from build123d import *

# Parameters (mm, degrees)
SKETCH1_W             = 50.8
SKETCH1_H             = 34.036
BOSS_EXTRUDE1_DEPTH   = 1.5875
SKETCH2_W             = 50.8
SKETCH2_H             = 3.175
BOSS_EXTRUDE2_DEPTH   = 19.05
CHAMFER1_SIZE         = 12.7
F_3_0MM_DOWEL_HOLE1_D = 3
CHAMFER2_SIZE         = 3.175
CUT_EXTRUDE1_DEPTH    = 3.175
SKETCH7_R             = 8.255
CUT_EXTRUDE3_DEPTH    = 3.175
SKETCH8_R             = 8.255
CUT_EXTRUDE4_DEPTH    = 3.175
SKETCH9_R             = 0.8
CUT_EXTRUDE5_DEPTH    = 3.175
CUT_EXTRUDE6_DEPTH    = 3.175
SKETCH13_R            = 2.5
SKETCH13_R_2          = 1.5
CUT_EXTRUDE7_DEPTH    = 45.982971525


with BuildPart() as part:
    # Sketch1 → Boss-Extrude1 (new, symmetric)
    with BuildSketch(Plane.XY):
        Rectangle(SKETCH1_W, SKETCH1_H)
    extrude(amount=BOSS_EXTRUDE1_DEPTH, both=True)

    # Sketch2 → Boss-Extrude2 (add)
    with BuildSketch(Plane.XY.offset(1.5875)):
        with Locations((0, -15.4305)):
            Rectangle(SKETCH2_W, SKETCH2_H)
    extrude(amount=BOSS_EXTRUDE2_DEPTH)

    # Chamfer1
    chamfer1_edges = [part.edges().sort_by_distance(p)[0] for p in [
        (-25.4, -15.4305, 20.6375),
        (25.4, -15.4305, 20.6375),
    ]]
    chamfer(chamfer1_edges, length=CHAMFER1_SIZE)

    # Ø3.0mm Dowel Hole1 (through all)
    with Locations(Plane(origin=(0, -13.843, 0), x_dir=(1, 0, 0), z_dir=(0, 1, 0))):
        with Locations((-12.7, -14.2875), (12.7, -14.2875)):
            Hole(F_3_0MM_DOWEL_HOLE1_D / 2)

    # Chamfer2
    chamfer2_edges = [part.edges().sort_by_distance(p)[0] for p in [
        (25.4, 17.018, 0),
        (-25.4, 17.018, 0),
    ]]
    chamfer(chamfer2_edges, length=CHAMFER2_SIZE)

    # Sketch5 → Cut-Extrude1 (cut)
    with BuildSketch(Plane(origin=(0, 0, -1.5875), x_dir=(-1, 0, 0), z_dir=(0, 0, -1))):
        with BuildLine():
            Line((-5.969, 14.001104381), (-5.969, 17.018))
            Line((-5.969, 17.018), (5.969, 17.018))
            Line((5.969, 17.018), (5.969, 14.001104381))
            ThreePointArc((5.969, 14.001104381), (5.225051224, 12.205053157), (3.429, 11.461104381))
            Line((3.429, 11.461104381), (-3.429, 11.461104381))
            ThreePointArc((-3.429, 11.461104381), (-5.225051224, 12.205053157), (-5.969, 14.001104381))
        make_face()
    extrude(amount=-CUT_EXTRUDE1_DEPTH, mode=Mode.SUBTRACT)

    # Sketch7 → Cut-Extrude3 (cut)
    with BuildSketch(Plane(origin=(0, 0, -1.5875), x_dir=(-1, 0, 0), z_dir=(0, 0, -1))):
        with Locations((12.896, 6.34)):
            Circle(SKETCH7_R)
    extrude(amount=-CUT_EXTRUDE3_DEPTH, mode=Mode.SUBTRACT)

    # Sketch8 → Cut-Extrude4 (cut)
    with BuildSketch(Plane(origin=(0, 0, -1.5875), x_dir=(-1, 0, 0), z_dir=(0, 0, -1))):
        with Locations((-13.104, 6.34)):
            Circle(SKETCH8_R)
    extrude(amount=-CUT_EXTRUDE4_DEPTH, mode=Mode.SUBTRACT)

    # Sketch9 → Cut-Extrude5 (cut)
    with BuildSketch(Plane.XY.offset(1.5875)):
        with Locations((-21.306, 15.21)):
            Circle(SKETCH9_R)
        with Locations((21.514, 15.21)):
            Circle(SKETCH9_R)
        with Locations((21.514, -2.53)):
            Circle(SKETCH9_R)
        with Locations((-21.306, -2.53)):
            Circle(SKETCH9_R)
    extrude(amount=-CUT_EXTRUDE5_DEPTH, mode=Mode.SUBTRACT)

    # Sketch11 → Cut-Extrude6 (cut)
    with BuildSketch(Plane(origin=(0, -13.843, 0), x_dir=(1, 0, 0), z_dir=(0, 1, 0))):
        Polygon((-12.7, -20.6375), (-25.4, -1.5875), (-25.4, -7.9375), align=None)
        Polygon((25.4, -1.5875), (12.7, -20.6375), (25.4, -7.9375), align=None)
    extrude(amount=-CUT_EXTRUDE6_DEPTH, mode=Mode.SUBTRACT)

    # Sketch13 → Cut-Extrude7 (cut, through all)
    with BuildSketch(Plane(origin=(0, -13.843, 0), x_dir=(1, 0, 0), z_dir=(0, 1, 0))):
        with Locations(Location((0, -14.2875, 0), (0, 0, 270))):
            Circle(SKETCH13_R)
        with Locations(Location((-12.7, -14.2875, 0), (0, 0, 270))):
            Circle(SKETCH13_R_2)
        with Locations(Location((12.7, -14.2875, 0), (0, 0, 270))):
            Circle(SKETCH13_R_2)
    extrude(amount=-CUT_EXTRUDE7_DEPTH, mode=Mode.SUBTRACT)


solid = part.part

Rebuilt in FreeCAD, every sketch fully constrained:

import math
import FreeCAD as App
import Part
import Sketcher

V = App.Vector
Q = App.Units.Quantity


def edges_at(feature, points):
    """Names of the edges that pass closest to the given points."""
    edges = feature.Shape.Edges
    near = lambda p: min(range(len(edges)), key=lambda i: edges[i].distToShape(Part.Vertex(*p))[0])
    return sorted({f"Edge{near(p) + 1}" for p in points})


def add_polygon(sketch, points):
    """Adds a closed chain of lines whose ends are joined by coincident constraints."""
    first, n = sketch.GeometryCount, len(points)
    for a, b in zip(points, points[1:] + points[:1]):
        sketch.addGeometry(Part.LineSegment(App.Vector(*a, 0), App.Vector(*b, 0)), False)
    for i in range(n):
        sketch.addConstraint(Sketcher.Constraint("Coincident", first + i, 2, first + (i + 1) % n, 1))

doc = App.newDocument("Part")
body = doc.addObject("PartDesign::Body", "Body")

# Sketch on XY plane
sketch1 = body.newObject("Sketcher::SketchObject", "Sketch")
sketch1.AttachmentSupport = (doc.getObject("XY_Plane"), [""])
sketch1.MapMode = "FlatFace"
add_polygon(sketch1, [(-25.4, 17.018), (-25.4, -17.018), (25.4, -17.018), (25.4, 17.018)])  # lines 0-3
sketch1.addConstraint([
    Sketcher.Constraint("Vertical", 0),
    Sketcher.Constraint("Horizontal", 1),
    Sketcher.Constraint("Vertical", 2),
    Sketcher.Constraint("Horizontal", 3),
    Sketcher.Constraint("Symmetric", 0, 2, 2, 2, -1, 1),
    Sketcher.Constraint("DistanceX", 1, 1, 1, 2, Q("2 in")),
    Sketcher.Constraint("DistanceY", 0, 2, 0, 1, Q("1.34 in")),
])
pad1 = body.newObject("PartDesign::Pad", "Pad")
pad1.Profile = sketch1
pad1.Length = Q("0.125 in")
pad1.Midplane = True

# Sketch on XY plane
sketch2 = body.newObject("Sketcher::SketchObject", "Sketch001")
sketch2.AttachmentSupport = (doc.getObject("XY_Plane"), [""])
sketch2.MapMode = "FlatFace"
sketch2.AttachmentOffset = App.Placement(V(0, 0, 0.0625 * 25.4), App.Rotation())
add_polygon(sketch2, [(-25.4, -13.843), (-25.4, -17.018), (25.4, -17.018), (25.4, -13.843)])  # lines 0-3
sketch2.addConstraint([
    Sketcher.Constraint("Vertical", 0),
    Sketcher.Constraint("Horizontal", 1),
    Sketcher.Constraint("Vertical", 2),
    Sketcher.Constraint("Horizontal", 3),
    Sketcher.Constraint("DistanceX", 1, 1, 1, 2, Q("2 in")),
    Sketcher.Constraint("DistanceX", 0, 2, -1, 1, Q("1 in")),
    Sketcher.Constraint("DistanceY", 0, 2, 0, 1, Q("0.125 in")),
    Sketcher.Constraint("DistanceY", 0, 2, -1, 1, Q("0.67 in")),
])
pad2 = body.newObject("PartDesign::Pad", "Pad001")
pad2.Profile = sketch2
pad2.Length = Q("0.75 in")
doc.recompute()

chamfer = body.newObject("PartDesign::Chamfer", "Chamfer")
chamfer.Base = (pad2, edges_at(pad2, [(-25.4, -15.431, 20.637), (25.4, -15.431, 20.637)]))
chamfer.Size = Q("0.5 in")

# Sketch on XZ plane
sketch3 = body.newObject("Sketcher::SketchObject", "Sketch002")
sketch3.AttachmentSupport = (doc.getObject("XZ_Plane"), [""])
sketch3.MapMode = "FlatFace"
sketch3.AttachmentOffset = App.Placement(V(0, 0, 0.545 * 25.4), App.Rotation())
sketch3.addGeometry([
    Part.Circle(V(-12.7, 14.2875, 0), V(0, 0, 1), 1.5),
    Part.Circle(V(12.7, 14.2875, 0), V(0, 0, 1), 1.5),
], False)
sketch3.addConstraint([
    Sketcher.Constraint("Equal", 0, 1),
    Sketcher.Constraint("Symmetric", 0, 3, 1, 3, -2),
    Sketcher.Constraint("DistanceX", 0, 3, 1, 3, Q("1 in")),
    Sketcher.Constraint("Diameter", 0, Q("3 mm")),
    Sketcher.Constraint("DistanceY", -1, 1, 0, 3, Q("0.5625 in")),
])
doc.recompute()
hole = body.newObject("PartDesign::Hole", "Hole")
hole.Profile = sketch3
hole.ThreadType = "None"
hole.Diameter = 3
hole.DepthType = "ThroughAll"
hole.Reversed = True
doc.recompute()

chamfer2 = body.newObject("PartDesign::Chamfer", "Chamfer001")
chamfer2.Base = (hole, edges_at(hole, [(25.4, 17.018, 0), (-25.4, 17.018, 0)]))
chamfer2.Size = Q("0.125 in")

# Sketch on XY plane
sketch4 = body.newObject("Sketcher::SketchObject", "Sketch003")
sketch4.AttachmentSupport = (doc.getObject("XY_Plane"), [""])
sketch4.MapMode = "FlatFace"
sketch4.AttachmentOffset = App.Placement(V(0, 0, -0.0625 * 25.4), App.Rotation())
sketch4.addGeometry([
    Part.LineSegment(V(5.969, 17.018, 0), V(5.969, 14.001104, 0)),  # 0
    Part.ArcOfCircle(Part.Circle(V(3.429, 14.001104, 0), V(0, 0, 1), 2.54), math.radians(-90), math.radians(0)),  # 1
    Part.LineSegment(V(3.429, 11.461104, 0), V(-3.429, 11.461104, 0)),  # 2
    Part.ArcOfCircle(Part.Circle(V(-3.429, 14.001104, 0), V(0, 0, 1), 2.54), math.radians(-180), math.radians(-90)),  # 3
    Part.LineSegment(V(-5.969, 14.001104, 0), V(-5.969, 17.018, 0)),  # 4
    Part.LineSegment(V(-5.969, 17.018, 0), V(5.969, 17.018, 0)),  # 5
], False)
sketch4.addConstraint([
    Sketcher.Constraint("Tangent", 0, 2, 1, 2),
    Sketcher.Constraint("Tangent", 1, 1, 2, 1),
    Sketcher.Constraint("Tangent", 2, 2, 3, 2),
    Sketcher.Constraint("Tangent", 3, 1, 4, 1),
    Sketcher.Constraint("Coincident", 4, 2, 5, 1),
    Sketcher.Constraint("Coincident", 5, 2, 0, 1),
    Sketcher.Constraint("Vertical", 0),
    Sketcher.Constraint("Horizontal", 2),
    Sketcher.Constraint("Vertical", 4),
    Sketcher.Constraint("Horizontal", 5),
    Sketcher.Constraint("Equal", 1, 3),
    Sketcher.Constraint("Radius", 1, Q("0.1 in")),
    Sketcher.Constraint("DistanceX", 2, 2, 2, 1, Q("0.27 in")),
    Sketcher.Constraint("DistanceY", -1, 1, 4, 2, Q("0.67 in")),
    Sketcher.Constraint("DistanceX", -1, 1, 1, 3, Q("0.135 in")),
    Sketcher.Constraint("DistanceY", 0, 2, 0, 1, Q("3.016896 mm")),
])
pocket1 = body.newObject("PartDesign::Pocket", "Pocket")
pocket1.Profile = sketch4
pocket1.Length = Q("0.125 in")
pocket1.Reversed = True

# Sketch on XY plane
sketch5 = body.newObject("Sketcher::SketchObject", "Sketch004")
sketch5.AttachmentSupport = (doc.getObject("XY_Plane"), [""])
sketch5.MapMode = "FlatFace"
sketch5.AttachmentOffset = App.Placement(V(0, 0, -0.0625 * 25.4), App.Rotation())
sketch5.addGeometry(Part.Circle(V(-12.896, 6.34, 0), V(0, 0, 1), 8.255), False)
sketch5.addConstraint([
    Sketcher.Constraint("Diameter", 0, Q("0.65 in")),
    Sketcher.Constraint("DistanceX", 0, 3, -1, 1, Q("12.896 mm")),
    Sketcher.Constraint("DistanceY", -1, 1, 0, 3, Q("6.34 mm")),
])
pocket2 = body.newObject("PartDesign::Pocket", "Pocket001")
pocket2.Profile = sketch5
pocket2.Length = Q("0.125 in")
pocket2.Reversed = True

# Sketch on XY plane
sketch6 = body.newObject("Sketcher::SketchObject", "Sketch005")
sketch6.AttachmentSupport = (doc.getObject("XY_Plane"), [""])
sketch6.MapMode = "FlatFace"
sketch6.AttachmentOffset = App.Placement(V(0, 0, -0.0625 * 25.4), App.Rotation())
sketch6.addGeometry(Part.Circle(V(13.104, 6.34, 0), V(0, 0, 1), 8.255), False)
sketch6.addConstraint([
    Sketcher.Constraint("Diameter", 0, Q("0.65 in")),
    Sketcher.Constraint("DistanceX", -1, 1, 0, 3, Q("13.104 mm")),
    Sketcher.Constraint("DistanceY", -1, 1, 0, 3, Q("6.34 mm")),
])
pocket3 = body.newObject("PartDesign::Pocket", "Pocket002")
pocket3.Profile = sketch6
pocket3.Length = Q("0.125 in")
pocket3.Reversed = True

# Sketch on XY plane
sketch7 = body.newObject("Sketcher::SketchObject", "Sketch006")
sketch7.AttachmentSupport = (doc.getObject("XY_Plane"), [""])
sketch7.MapMode = "FlatFace"
sketch7.AttachmentOffset = App.Placement(V(0, 0, 0.0625 * 25.4), App.Rotation())
sketch7.addGeometry([
    Part.Circle(V(-21.306, 15.21, 0), V(0, 0, 1), 0.8),
    Part.Circle(V(21.514, 15.21, 0), V(0, 0, 1), 0.8),
    Part.Circle(V(21.514, -2.53, 0), V(0, 0, 1), 0.8),
    Part.Circle(V(-21.306, -2.53, 0), V(0, 0, 1), 0.8),
], False)
sketch7.addConstraint([
    Sketcher.Constraint("Equal", 0, 1),
    Sketcher.Constraint("Equal", 1, 2),
    Sketcher.Constraint("Equal", 2, 3),
    Sketcher.Constraint("Horizontal", 0, 3, 1, 3),
    Sketcher.Constraint("Horizontal", 2, 3, 3, 3),
    Sketcher.Constraint("Vertical", 1, 3, 2, 3),
    Sketcher.Constraint("Vertical", 0, 3, 3, 3),
    Sketcher.Constraint("Diameter", 0, Q("1.6 mm")),
    Sketcher.Constraint("DistanceX", 0, 3, -1, 1, Q("21.306 mm")),
    Sketcher.Constraint("DistanceY", -1, 1, 0, 3, Q("15.21 mm")),
    Sketcher.Constraint("DistanceX", -1, 1, 1, 3, Q("21.514 mm")),
    Sketcher.Constraint("DistanceY", 2, 3, -1, 1, Q("2.53 mm")),
])
pocket4 = body.newObject("PartDesign::Pocket", "Pocket003")
pocket4.Profile = sketch7
pocket4.Length = Q("0.125 in")

# Sketch on XZ plane
sketch8 = body.newObject("Sketcher::SketchObject", "Sketch007")
sketch8.AttachmentSupport = (doc.getObject("XZ_Plane"), [""])
sketch8.MapMode = "FlatFace"
sketch8.AttachmentOffset = App.Placement(V(0, 0, 0.545 * 25.4), App.Rotation())
add_polygon(sketch8, [(-12.7, 20.6375), (-25.4, 1.5875), (-25.4, 7.9375)])  # lines 0-2
add_polygon(sketch8, [(25.4, 1.5875), (12.7, 20.6375), (25.4, 7.9375)])  # lines 3-5
sketch8.addConstraint([
    Sketcher.Constraint("Vertical", 1),
    Sketcher.Constraint("Vertical", 5),
    Sketcher.Constraint("Symmetric", 2, 2, 3, 2, -2),
    Sketcher.Constraint("Symmetric", 1, 2, 4, 2, -2),
    Sketcher.Constraint("Perpendicular", 2, 4),
    Sketcher.Constraint("Horizontal", 0, 2, 5, 2),
    Sketcher.Constraint("DistanceX", 0, 2, -1, 1, Q("1 in")),
    Sketcher.Constraint("DistanceX", 2, 2, 3, 2, Q("1 in")),
    Sketcher.Constraint("DistanceY", 1, 1, 1, 2, Q("0.25 in")),
    Sketcher.Constraint("DistanceY", -1, 1, 0, 2, Q("0.0625 in")),
])
pocket5 = body.newObject("PartDesign::Pocket", "Pocket004")
pocket5.Profile = sketch8
pocket5.Length = Q("0.125 in")
pocket5.Reversed = True

# Sketch on XZ plane
sketch9 = body.newObject("Sketcher::SketchObject", "Sketch008")
sketch9.AttachmentSupport = (doc.getObject("XZ_Plane"), [""])
sketch9.MapMode = "FlatFace"
sketch9.AttachmentOffset = App.Placement(V(0, 0, 0.545 * 25.4), App.Rotation())
sketch9.addGeometry([
    Part.Circle(V(0, 14.2875, 0), V(0, 0, 1), 2.5),
    Part.Circle(V(-12.7, 14.2875, 0), V(0, 0, 1), 1.5),
    Part.Circle(V(12.7, 14.2875, 0), V(0, 0, 1), 1.5),
], False)
sketch9.addConstraint([
    Sketcher.Constraint("Equal", 1, 2),
    Sketcher.Constraint("Symmetric", 1, 3, 2, 3, -2),
    Sketcher.Constraint("PointOnObject", 0, 3, -2),
    Sketcher.Constraint("Horizontal", 0, 3, 1, 3),
    Sketcher.Constraint("DistanceX", 1, 3, 2, 3, Q("1 in")),
    Sketcher.Constraint("Diameter", 0, Q("5 mm")),
    Sketcher.Constraint("Diameter", 1, Q("3 mm")),
    Sketcher.Constraint("DistanceY", -1, 1, 0, 3, Q("0.5625 in")),
])
pocket6 = body.newObject("PartDesign::Pocket", "Pocket005")
pocket6.Profile = sketch9
pocket6.Type = "ThroughAll"
pocket6.Reversed = True

doc.recompute()
